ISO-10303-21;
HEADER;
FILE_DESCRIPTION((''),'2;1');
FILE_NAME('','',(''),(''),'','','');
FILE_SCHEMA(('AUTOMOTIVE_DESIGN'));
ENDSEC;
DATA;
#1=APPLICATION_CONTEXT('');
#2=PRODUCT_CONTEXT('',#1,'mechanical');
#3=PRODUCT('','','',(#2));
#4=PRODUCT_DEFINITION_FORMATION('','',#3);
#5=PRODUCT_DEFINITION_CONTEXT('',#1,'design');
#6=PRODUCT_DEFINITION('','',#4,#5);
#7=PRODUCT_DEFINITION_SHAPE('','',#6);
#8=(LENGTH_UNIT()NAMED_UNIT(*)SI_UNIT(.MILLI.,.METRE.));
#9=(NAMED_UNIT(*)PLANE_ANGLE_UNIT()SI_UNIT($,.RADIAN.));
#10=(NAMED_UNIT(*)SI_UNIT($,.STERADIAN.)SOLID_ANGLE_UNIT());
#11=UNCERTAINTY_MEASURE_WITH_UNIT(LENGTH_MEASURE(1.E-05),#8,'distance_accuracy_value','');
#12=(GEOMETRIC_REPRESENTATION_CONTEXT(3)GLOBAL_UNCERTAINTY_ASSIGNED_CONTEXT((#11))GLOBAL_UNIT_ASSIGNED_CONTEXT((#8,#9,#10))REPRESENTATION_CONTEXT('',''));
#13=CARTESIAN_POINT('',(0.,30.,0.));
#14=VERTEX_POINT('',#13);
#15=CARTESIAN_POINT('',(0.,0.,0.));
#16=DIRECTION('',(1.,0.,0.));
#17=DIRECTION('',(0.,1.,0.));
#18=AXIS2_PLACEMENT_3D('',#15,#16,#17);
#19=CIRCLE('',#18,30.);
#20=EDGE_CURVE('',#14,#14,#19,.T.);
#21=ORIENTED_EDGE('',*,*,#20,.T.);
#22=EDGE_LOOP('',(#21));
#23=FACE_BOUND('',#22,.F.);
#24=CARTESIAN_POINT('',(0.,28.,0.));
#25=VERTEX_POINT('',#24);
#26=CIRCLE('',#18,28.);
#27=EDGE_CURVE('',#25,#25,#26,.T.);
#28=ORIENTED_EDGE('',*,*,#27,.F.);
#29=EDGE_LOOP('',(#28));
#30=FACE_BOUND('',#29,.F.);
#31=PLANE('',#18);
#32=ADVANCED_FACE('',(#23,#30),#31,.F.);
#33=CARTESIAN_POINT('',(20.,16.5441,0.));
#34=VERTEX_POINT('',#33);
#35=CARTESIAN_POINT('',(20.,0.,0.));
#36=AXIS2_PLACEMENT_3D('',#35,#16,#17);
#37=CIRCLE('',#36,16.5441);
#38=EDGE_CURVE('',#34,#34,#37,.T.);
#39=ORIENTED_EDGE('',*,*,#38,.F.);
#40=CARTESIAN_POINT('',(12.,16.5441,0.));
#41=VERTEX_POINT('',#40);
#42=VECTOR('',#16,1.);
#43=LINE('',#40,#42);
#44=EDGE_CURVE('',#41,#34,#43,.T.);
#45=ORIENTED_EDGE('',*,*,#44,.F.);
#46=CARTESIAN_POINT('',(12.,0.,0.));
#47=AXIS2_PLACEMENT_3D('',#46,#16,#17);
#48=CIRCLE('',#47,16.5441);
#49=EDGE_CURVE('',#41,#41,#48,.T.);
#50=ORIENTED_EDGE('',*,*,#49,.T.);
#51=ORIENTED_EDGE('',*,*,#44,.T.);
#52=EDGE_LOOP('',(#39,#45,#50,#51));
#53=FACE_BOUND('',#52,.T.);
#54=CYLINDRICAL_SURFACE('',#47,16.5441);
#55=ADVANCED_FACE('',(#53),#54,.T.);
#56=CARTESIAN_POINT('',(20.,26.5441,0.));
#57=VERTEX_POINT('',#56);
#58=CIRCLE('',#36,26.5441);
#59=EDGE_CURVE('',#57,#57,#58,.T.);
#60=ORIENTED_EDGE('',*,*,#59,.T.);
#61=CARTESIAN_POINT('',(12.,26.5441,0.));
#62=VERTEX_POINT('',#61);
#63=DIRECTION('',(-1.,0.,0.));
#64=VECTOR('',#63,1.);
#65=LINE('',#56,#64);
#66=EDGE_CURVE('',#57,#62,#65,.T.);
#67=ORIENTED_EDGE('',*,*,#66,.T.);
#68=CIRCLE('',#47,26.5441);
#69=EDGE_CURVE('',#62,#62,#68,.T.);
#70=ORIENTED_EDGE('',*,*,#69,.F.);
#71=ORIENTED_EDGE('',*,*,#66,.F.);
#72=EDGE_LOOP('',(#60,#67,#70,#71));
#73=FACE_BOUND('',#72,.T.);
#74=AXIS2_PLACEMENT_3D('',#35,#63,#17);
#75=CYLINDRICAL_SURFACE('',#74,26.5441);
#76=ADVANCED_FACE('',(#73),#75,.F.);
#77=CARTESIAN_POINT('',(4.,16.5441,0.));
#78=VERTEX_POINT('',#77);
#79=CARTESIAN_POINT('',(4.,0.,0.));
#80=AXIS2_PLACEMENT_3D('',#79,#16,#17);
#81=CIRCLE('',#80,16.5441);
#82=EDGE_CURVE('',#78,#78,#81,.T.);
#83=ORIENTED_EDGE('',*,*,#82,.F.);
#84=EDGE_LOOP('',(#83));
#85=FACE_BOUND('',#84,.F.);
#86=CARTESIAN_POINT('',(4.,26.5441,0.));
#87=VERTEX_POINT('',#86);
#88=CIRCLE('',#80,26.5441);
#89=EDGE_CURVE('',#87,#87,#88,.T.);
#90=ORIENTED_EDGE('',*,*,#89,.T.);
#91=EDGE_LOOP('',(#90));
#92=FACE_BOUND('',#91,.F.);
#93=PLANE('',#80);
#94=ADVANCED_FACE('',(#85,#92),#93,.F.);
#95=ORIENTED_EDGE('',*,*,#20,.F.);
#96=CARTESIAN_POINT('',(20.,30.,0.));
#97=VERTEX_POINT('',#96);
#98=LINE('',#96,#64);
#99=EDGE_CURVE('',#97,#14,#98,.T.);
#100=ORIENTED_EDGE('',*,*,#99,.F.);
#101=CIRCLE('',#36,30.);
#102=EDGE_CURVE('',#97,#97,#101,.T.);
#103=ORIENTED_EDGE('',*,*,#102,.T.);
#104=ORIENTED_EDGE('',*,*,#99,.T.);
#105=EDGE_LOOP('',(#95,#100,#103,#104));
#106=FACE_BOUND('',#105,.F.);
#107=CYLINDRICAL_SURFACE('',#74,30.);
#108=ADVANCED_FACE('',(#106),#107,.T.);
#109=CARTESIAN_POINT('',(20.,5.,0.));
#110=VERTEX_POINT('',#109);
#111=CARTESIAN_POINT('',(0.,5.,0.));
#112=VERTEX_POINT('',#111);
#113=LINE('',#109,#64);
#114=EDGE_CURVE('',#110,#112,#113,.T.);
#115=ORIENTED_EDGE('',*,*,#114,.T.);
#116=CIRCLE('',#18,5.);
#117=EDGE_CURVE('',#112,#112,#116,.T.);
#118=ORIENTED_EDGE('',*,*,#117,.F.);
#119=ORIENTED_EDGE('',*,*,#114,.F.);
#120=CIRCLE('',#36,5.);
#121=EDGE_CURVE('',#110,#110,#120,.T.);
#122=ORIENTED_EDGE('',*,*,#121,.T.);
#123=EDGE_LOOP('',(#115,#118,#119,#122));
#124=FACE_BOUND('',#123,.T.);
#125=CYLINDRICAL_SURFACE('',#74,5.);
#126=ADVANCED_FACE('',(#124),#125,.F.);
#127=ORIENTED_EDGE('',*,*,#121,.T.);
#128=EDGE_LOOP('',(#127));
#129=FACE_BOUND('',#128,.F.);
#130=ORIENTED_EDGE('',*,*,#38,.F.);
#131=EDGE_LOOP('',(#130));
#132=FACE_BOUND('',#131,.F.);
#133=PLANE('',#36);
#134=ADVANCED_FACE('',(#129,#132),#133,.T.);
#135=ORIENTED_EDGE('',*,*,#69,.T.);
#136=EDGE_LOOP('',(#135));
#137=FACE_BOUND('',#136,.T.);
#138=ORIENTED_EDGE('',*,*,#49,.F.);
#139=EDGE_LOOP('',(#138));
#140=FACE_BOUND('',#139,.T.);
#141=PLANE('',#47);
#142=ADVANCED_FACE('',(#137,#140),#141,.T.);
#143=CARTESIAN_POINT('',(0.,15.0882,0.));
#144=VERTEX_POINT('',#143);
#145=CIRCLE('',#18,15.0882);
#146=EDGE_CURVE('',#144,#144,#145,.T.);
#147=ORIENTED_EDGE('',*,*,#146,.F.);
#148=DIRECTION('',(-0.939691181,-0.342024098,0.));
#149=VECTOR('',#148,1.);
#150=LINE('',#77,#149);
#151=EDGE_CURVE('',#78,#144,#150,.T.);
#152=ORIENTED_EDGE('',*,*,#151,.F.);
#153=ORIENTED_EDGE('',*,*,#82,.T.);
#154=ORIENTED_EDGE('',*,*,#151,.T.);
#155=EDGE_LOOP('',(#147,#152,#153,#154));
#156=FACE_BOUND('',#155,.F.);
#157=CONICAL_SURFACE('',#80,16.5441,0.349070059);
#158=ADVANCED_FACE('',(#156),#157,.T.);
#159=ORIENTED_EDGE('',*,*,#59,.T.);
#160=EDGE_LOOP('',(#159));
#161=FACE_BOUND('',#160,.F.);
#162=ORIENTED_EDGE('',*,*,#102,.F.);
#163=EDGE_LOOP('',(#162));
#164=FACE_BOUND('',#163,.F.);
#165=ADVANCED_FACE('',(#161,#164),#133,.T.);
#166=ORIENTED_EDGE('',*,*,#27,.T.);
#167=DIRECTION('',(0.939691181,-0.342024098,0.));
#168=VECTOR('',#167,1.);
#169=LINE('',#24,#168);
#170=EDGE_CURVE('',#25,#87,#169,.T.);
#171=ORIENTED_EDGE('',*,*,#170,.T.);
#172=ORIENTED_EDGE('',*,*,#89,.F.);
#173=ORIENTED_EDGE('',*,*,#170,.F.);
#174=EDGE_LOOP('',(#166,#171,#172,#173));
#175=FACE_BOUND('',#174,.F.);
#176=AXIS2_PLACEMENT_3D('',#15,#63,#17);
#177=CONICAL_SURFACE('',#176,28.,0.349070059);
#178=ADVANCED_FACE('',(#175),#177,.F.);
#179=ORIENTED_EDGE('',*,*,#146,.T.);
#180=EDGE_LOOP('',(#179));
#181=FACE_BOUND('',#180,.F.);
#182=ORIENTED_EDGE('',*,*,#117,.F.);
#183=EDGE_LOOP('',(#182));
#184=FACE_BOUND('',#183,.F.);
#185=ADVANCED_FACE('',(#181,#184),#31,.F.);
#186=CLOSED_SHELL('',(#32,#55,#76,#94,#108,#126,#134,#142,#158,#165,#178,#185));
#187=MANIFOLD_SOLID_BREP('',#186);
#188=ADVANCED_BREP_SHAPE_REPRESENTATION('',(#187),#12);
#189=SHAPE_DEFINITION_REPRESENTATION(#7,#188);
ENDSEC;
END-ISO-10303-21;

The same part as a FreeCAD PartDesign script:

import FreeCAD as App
import Part
import Sketcher
from FreeCAD import Vector
Q = App.Units.Quantity

doc = App.newDocument("Part")
params = doc.addObject("Spreadsheet::Sheet", "Params")
for row, (alias, value) in enumerate([
    ("sketch1_width", "20 mm"),
    ("sketch1_height", "30 mm"),
    ("revolution_angle", "360 deg"),
    ("sketch2_width", "8 mm"),
    ("sketch2_height", "10 mm"),
    ("sketch2_height2", "5 mm"),
    ("groove_angle", "360 deg"),
], start=1):
    params.set(f"A{row}", alias)
    params.set(f"B{row}", "=" + value)
    params.setAlias(f"B{row}", alias)

body = doc.addObject("PartDesign::Body", "Body")

sketch1 = body.newObject("Sketcher::SketchObject", "Sketch")
sketch1.AttachmentSupport = (doc.getObject("XY_Plane"), [""])
sketch1.MapMode = "FlatFace"
sketch1.addGeometry([
    Part.LineSegment(Vector(0, 30, 0), Vector(0, 0, 0)),
    Part.LineSegment(Vector(0, 0, 0), Vector(20, 0, 0)),
    Part.LineSegment(Vector(20, 0, 0), Vector(20, 30, 0)),
    Part.LineSegment(Vector(20, 30, 0), Vector(0, 30, 0)),
], False)
sketch1.addConstraint([
    Sketcher.Constraint("Coincident", 0, 2, 1, 1),
    Sketcher.Constraint("Coincident", 1, 2, 2, 1),
    Sketcher.Constraint("Coincident", 2, 2, 3, 1),
    Sketcher.Constraint("Coincident", 3, 2, 0, 1),
    Sketcher.Constraint("Vertical", 0),
    Sketcher.Constraint("Horizontal", 1),
    Sketcher.Constraint("Vertical", 2),
    Sketcher.Constraint("Horizontal", 3),
    Sketcher.Constraint("Coincident", 0, 2, -1, 1),
    Sketcher.Constraint("DistanceX", 1, 1, 1, 2, 20.0),
    Sketcher.Constraint("DistanceY", 0, 2, 0, 1, 30.0),
])
sketch1.setExpression("Constraints[9]", "Params.sketch1_width")
sketch1.setExpression("Constraints[10]", "Params.sketch1_height")
revolution = body.newObject("PartDesign::Revolution", "Revolution")
revolution.Profile = sketch1
revolution.ReferenceAxis = (sketch1, ["H_Axis"])
revolution.setExpression("Angle", "Params.revolution_angle")

sketch2 = body.newObject("Sketcher::SketchObject", "Sketch001")
sketch2.AttachmentSupport = (doc.getObject("XY_Plane"), [""])
sketch2.MapMode = "FlatFace"
sketch2.addGeometry([
    Part.LineSegment(Vector(0, 28, 0), Vector(0, 15.0882, 0)),
    Part.LineSegment(Vector(0, 15.0882, 0), Vector(4, 16.5441, 0)),
    Part.LineSegment(Vector(4, 16.5441, 0), Vector(4, 26.5441, 0)),
    Part.LineSegment(Vector(4, 26.5441, 0), Vector(0, 28, 0)),
    Part.LineSegment(Vector(12, 16.5441, 0), Vector(20, 16.5441, 0)),
    Part.LineSegment(Vector(20, 16.5441, 0), Vector(20, 26.5441, 0)),
    Part.LineSegment(Vector(20, 26.5441, 0), Vector(12, 26.5441, 0)),
    Part.LineSegment(Vector(12, 26.5441, 0), Vector(12, 16.5441, 0)),
    Part.LineSegment(Vector(0, 5, 0), Vector(0, 0, 0)),
    Part.LineSegment(Vector(0, 0, 0), Vector(20, 0, 0)),
    Part.LineSegment(Vector(20, 0, 0), Vector(20, 5, 0)),
    Part.LineSegment(Vector(20, 5, 0), Vector(0, 5, 0)),
], False)
sketch2.addConstraint([
    Sketcher.Constraint("Coincident", 0, 2, 1, 1),
    Sketcher.Constraint("Coincident", 1, 2, 2, 1),
    Sketcher.Constraint("Coincident", 2, 2, 3, 1),
    Sketcher.Constraint("Coincident", 3, 2, 0, 1),
    Sketcher.Constraint("Coincident", 4, 2, 5, 1),
    Sketcher.Constraint("Coincident", 5, 2, 6, 1),
    Sketcher.Constraint("Coincident", 6, 2, 7, 1),
    Sketcher.Constraint("Coincident", 7, 2, 4, 1),
    Sketcher.Constraint("Coincident", 8, 2, 9, 1),
    Sketcher.Constraint("Coincident", 9, 2, 10, 1),
    Sketcher.Constraint("Coincident", 10, 2, 11, 1),
    Sketcher.Constraint("Coincident", 11, 2, 8, 1),
    Sketcher.Constraint("Vertical", 0),
    Sketcher.Constraint("Vertical", 2),
    Sketcher.Constraint("Horizontal", 4),
    Sketcher.Constraint("Vertical", 5),
    Sketcher.Constraint("Horizontal", 6),
    Sketcher.Constraint("Vertical", 7),
    Sketcher.Constraint("Vertical", 8),
    Sketcher.Constraint("Horizontal", 9),
    Sketcher.Constraint("Vertical", 10),
    Sketcher.Constraint("Horizontal", 11),
    Sketcher.Constraint("Coincident", 8, 2, -1, 1),
    Sketcher.Constraint("PointOnObject", 0, 2, -2),
    Sketcher.Constraint("Horizontal", 1, 2, 4, 2),
    Sketcher.Constraint("Horizontal", 2, 2, 5, 2),
    Sketcher.Constraint("Vertical", 5, 2, 9, 2),
    Sketcher.Constraint("Equal", 1, 3),
    Sketcher.Constraint("DistanceX", 4, 1, 4, 2, 8.0),
    Sketcher.Constraint("DistanceY", 2, 1, 2, 2, 10.0),
    Sketcher.Constraint("DistanceX", -1, 1, 1, 2, 4.0),
    Sketcher.Constraint("DistanceX", 2, 2, 6, 2, 8.0),
    Sketcher.Constraint("DistanceY", 8, 2, 8, 1, 5.0),
    Sketcher.Constraint("Angle", 1, Q("20.0002 deg")),
    Sketcher.Constraint("DistanceY", -1, 1, 3, 2, 28.0),
])
sketch2.setExpression("Constraints[28]", "Params.sketch2_width")
sketch2.setExpression("Constraints[29]", "Params.sketch2_height")
sketch2.setExpression("Constraints[32]", "Params.sketch2_height2")
groove = body.newObject("PartDesign::Groove", "Groove")
groove.Profile = sketch2
groove.ReferenceAxis = (sketch2, ["H_Axis"])
groove.setExpression("Angle", "Params.groove_angle")

doc.recompute()
